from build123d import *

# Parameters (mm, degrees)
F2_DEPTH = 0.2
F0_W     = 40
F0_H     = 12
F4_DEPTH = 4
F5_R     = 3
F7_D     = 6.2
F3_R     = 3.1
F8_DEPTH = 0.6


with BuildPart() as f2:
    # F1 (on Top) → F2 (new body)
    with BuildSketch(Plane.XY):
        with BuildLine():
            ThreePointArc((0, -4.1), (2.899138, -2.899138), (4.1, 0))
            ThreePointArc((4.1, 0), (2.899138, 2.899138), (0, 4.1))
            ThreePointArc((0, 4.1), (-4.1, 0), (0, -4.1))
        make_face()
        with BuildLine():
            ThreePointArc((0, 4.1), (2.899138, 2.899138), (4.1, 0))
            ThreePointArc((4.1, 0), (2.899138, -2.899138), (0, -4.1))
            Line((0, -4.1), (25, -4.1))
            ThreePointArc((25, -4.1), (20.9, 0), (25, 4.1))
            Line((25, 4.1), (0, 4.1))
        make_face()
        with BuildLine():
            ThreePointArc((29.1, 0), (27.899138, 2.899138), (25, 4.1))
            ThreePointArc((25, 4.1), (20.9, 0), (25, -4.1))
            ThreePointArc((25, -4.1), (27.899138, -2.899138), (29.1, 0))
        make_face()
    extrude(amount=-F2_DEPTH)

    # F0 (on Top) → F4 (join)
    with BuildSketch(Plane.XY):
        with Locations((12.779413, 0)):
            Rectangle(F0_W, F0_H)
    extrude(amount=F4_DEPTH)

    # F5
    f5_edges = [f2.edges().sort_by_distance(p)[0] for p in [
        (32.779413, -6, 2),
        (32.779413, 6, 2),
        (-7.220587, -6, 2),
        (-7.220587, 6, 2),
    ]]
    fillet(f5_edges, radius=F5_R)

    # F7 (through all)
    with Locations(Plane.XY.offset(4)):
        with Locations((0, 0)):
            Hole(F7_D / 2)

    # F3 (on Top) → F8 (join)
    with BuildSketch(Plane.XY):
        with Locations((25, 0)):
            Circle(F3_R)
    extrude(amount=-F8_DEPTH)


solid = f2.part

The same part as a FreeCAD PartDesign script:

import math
import FreeCAD as App
import Part
import Sketcher
from FreeCAD import Vector
Q = App.Units.Quantity


def edges_at(feature, points):
    """Names of the edges that pass closest to the given points."""
    edges = feature.Shape.Edges
    near = lambda p: min(range(len(edges)), key=lambda i: edges[i].distToShape(Part.Vertex(*p))[0])
    return sorted({f"Edge{near(p) + 1}" for p in points})

doc = App.newDocument("Part")
body = doc.addObject("PartDesign::Body", "Body")

# Sketch on XY plane
sketch1 = doc.addObject("Sketcher::SketchObject", "Sketch")
body.addObject(sketch1)
sketch1.AttachmentSupport = (doc.XY_Plane, [""])
sketch1.MapMode = "FlatFace"
sketch1.addGeometry([
    Part.ArcOfCircle(Part.Circle(Vector(0, 0, 0), Vector(0, 0, 1), 4.1), math.radians(90), math.radians(270)),  # 0
    Part.LineSegment(Vector(0, -4.1, 0), Vector(25, -4.1, 0)),  # 1
    Part.ArcOfCircle(Part.Circle(Vector(25, 0, 0), Vector(0, 0, 1), 4.1), math.radians(-90), math.radians(0)),  # 2
    Part.ArcOfCircle(Part.Circle(Vector(25, 0, 0), Vector(0, 0, 1), 4.1), math.radians(0), math.radians(90)),  # 3
    Part.LineSegment(Vector(25, 4.1, 0), Vector(0, 4.1, 0)),  # 4
], False)
sketch1.addConstraint([
    Sketcher.Constraint("Tangent", 0, 2, 1, 1),
    Sketcher.Constraint("Tangent", 1, 2, 2, 1),
    Sketcher.Constraint("Tangent", 2, 2, 3, 1),
    Sketcher.Constraint("Tangent", 3, 2, 4, 1),
    Sketcher.Constraint("Tangent", 4, 2, 0, 1),
    Sketcher.Constraint("Horizontal", 1),
    Sketcher.Constraint("Horizontal", 4),
    Sketcher.Constraint("Coincident", 0, 3, -1, 1),
    Sketcher.Constraint("Equal", 0, 2),
    Sketcher.Constraint("PointOnObject", 2, 2, -1),
    Sketcher.Constraint("Radius", 0, Q("4.1 mm")),
    Sketcher.Constraint("DistanceX", 1, 1, 1, 2, Q("25 mm")),
])
pad1 = doc.addObject("PartDesign::Pad", "Pad")
body.addObject(pad1)
pad1.Profile = sketch1
pad1.Length = 0.2
pad1.Reversed = True

# Sketch on XY plane
sketch2 = doc.addObject("Sketcher::SketchObject", "Sketch001")
body.addObject(sketch2)
sketch2.AttachmentSupport = (doc.XY_Plane, [""])
sketch2.MapMode = "FlatFace"
sketch2.addGeometry([
    Part.LineSegment(Vector(-7, 6, 0), Vector(-7, -6, 0)),
    Part.LineSegment(Vector(-7, -6, 0), Vector(33, -6, 0)),
    Part.LineSegment(Vector(33, -6, 0), Vector(33, 6, 0)),
    Part.LineSegment(Vector(33, 6, 0), Vector(-7, 6, 0)),
], False)
sketch2.addConstraint([
    Sketcher.Constraint("Coincident", 0, 2, 1, 1),
    Sketcher.Constraint("Coincident", 1, 2, 2, 1),
    Sketcher.Constraint("Coincident", 2, 2, 3, 1),
    Sketcher.Constraint("Coincident", 3, 2, 0, 1),
    Sketcher.Constraint("Vertical", 0),
    Sketcher.Constraint("Horizontal", 1),
    Sketcher.Constraint("Vertical", 2),
    Sketcher.Constraint("Horizontal", 3),
    Sketcher.Constraint("DistanceX", 1, 1, 1, 2, Q("40 mm")),
    Sketcher.Constraint("DistanceY", 0, 2, 0, 1, Q("12 mm")),
    Sketcher.Constraint("DistanceY", 0, 2, -1, 1, Q("6 mm")),
    Sketcher.Constraint("DistanceX", 0, 2, -1, 1, Q("7.220587 mm")),
])
pad2 = doc.addObject("PartDesign::Pad", "Pad001")
body.addObject(pad2)
pad2.Profile = sketch2
pad2.Length = 4
doc.recompute()

fillet = doc.addObject("PartDesign::Fillet", "Fillet")
body.addObject(fillet)
fillet.Base = (pad2, edges_at(pad2, [
    (32.779, -6, 2),
    (32.779, 6, 2),
    (-7.221, -6, 2),
    (-7.221, 6, 2),
]))
fillet.Radius = 3

# Sketch on XY plane
sketch3 = doc.addObject("Sketcher::SketchObject", "Sketch002")
body.addObject(sketch3)
sketch3.AttachmentSupport = (doc.XY_Plane, [""])
sketch3.MapMode = "FlatFace"
sketch3.AttachmentOffset = App.Placement(Vector(0, 0, 4), App.Rotation())
sketch3.addGeometry(Part.Circle(Vector(0, 0, 0), Vector(0, 0, 1), 3.1), False)
sketch3.addConstraint([
    Sketcher.Constraint("Coincident", 0, 3, -1, 1),
    Sketcher.Constraint("Diameter", 0, Q("6.2 mm")),
])
doc.recompute()
hole = doc.addObject("PartDesign::Hole", "Hole")
body.addObject(hole)
hole.Profile = sketch3
hole.ThreadType = "None"
hole.Diameter = 6.2
hole.DepthType = "ThroughAll"

# Sketch on XY plane
sketch4 = doc.addObject("Sketcher::SketchObject", "Sketch003")
body.addObject(sketch4)
sketch4.AttachmentSupport = (doc.XY_Plane, [""])
sketch4.MapMode = "FlatFace"
sketch4.addGeometry(Part.Circle(Vector(25, 0, 0), Vector(0, 0, 1), 3.1), False)
sketch4.addConstraint([
    Sketcher.Constraint("PointOnObject", 0, 3, -1),
    Sketcher.Constraint("Diameter", 0, Q("6.2 mm")),
    Sketcher.Constraint("DistanceX", -1, 1, 0, 3, Q("25 mm")),
])
pad3 = doc.addObject("PartDesign::Pad", "Pad002")
body.addObject(pad3)
pad3.Profile = sketch4
pad3.Length = 0.6
pad3.Reversed = True

doc.recompute()
